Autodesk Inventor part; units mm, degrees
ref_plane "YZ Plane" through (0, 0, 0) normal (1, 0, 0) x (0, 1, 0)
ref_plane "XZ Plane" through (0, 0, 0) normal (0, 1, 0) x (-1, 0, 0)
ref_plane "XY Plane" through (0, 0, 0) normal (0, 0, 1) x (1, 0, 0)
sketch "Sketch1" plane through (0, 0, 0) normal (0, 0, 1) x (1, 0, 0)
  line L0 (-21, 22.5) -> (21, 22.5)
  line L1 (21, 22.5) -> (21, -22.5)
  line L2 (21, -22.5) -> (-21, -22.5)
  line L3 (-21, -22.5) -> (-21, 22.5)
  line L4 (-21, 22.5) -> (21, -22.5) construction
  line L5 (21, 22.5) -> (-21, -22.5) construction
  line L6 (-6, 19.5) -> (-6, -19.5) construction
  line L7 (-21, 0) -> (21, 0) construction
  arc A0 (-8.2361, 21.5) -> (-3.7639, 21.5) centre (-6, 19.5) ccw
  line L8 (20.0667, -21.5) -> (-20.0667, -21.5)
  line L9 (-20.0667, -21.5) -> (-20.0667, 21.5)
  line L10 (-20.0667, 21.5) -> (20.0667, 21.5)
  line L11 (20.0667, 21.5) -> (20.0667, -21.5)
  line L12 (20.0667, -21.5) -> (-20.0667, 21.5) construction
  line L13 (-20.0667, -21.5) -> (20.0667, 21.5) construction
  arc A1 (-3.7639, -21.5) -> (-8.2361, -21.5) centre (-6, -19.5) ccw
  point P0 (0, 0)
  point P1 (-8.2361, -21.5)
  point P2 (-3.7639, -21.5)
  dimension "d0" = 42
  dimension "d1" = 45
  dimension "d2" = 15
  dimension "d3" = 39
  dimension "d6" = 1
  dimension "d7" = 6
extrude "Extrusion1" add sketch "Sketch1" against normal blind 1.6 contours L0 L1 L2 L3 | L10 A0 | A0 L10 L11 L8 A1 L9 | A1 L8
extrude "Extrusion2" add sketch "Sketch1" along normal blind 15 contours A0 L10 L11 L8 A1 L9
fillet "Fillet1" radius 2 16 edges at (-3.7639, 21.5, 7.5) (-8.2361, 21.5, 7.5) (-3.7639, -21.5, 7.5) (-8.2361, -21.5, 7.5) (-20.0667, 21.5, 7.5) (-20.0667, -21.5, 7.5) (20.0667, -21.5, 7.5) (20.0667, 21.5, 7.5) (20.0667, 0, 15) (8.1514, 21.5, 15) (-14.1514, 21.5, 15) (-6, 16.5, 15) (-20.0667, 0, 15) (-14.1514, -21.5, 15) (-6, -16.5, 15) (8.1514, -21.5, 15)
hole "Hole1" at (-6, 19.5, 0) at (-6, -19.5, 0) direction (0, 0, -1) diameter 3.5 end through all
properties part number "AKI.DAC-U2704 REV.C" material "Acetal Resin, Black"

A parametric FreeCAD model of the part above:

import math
import FreeCAD as App
import Part
import Sketcher


def edges_at(feature, points):
    """Names of the edges that pass closest to the given points."""
    edges = feature.Shape.Edges
    near = lambda p: min(range(len(edges)), key=lambda i: edges[i].distToShape(Part.Vertex(*p))[0])
    return sorted({f"Edge{near(p) + 1}" for p in points})

doc = App.newDocument("Part")
body = doc.addObject("PartDesign::Body", "Body")

# Sketch on XY plane
sketch1 = body.newObject("Sketcher::SketchObject", "Sketch")
sketch1.AttachmentSupport = (doc.getObject("XY_Plane"), [""])
sketch1.MapMode = "FlatFace"
sketch1.addGeometry([
    Part.LineSegment(App.Vector(21, 22, 0), App.Vector(-21, 22, 0)),
    Part.LineSegment(App.Vector(-21, 22, 0), App.Vector(-21, -22, 0)),
    Part.LineSegment(App.Vector(-21, -22, 0), App.Vector(21, -22, 0)),
    Part.LineSegment(App.Vector(21, -22, 0), App.Vector(21, 22, 0)),
], False)
sketch1.addConstraint([
    Sketcher.Constraint("Coincident", 0, 2, 1, 1),
    Sketcher.Constraint("Coincident", 1, 2, 2, 1),
    Sketcher.Constraint("Coincident", 2, 2, 3, 1),
    Sketcher.Constraint("Coincident", 3, 2, 0, 1),
    Sketcher.Constraint("Horizontal", 0),
    Sketcher.Constraint("Vertical", 1),
    Sketcher.Constraint("Horizontal", 2),
    Sketcher.Constraint("Vertical", 3),
    Sketcher.Constraint("Symmetric", 0, 2, 2, 2, -1, 1),
    Sketcher.Constraint("DistanceX", 0, 2, 0, 1, 42.0),
    Sketcher.Constraint("DistanceY", 1, 2, 1, 1, 45.0),
])
pad1 = body.newObject("PartDesign::Pad", "Pad")
pad1.Profile = sketch1
pad1.Length = 1.6
pad1.Reversed = True

# Sketch on XY plane
sketch2 = body.newObject("Sketcher::SketchObject", "Sketch001")
sketch2.AttachmentSupport = (doc.getObject("XY_Plane"), [""])
sketch2.MapMode = "FlatFace"
sketch2.addGeometry([
    Part.ArcOfCircle(Part.Circle(App.Vector(-6, 19.5, 0), App.Vector(0, 0, 1), 3), math.radians(138), math.radians(402)),  # 0
    Part.LineSegment(App.Vector(-8.2, 21.5, 0), App.Vector(-20.1, 21.5, 0)),  # 1
    Part.LineSegment(App.Vector(-20.1, 21.5, 0), App.Vector(-20.1, -21.5, 0)),  # 2
    Part.LineSegment(App.Vector(-20.1, -21.5, 0), App.Vector(-8.2, -21.5, 0)),  # 3
    Part.ArcOfCircle(Part.Circle(App.Vector(-6, -19.5, 0), App.Vector(0, 0, 1), 3), math.radians(-42), math.radians(222)),  # 4
    Part.LineSegment(App.Vector(-3.8, -21.5, 0), App.Vector(20.1, -21.5, 0)),  # 5
    Part.LineSegment(App.Vector(20.1, -21.5, 0), App.Vector(20.1, 21.5, 0)),  # 6
    Part.LineSegment(App.Vector(20.1, 21.5, 0), App.Vector(-3.8, 21.5, 0)),  # 7
], False)
sketch2.addConstraint([
    Sketcher.Constraint("Coincident", 0, 1, 1, 1),
    Sketcher.Constraint("Coincident", 1, 2, 2, 1),
    Sketcher.Constraint("Coincident", 2, 2, 3, 1),
    Sketcher.Constraint("Coincident", 3, 2, 4, 2),
    Sketcher.Constraint("Coincident", 4, 1, 5, 1),
    Sketcher.Constraint("Coincident", 5, 2, 6, 1),
    Sketcher.Constraint("Coincident", 6, 2, 7, 1),
    Sketcher.Constraint("Coincident", 7, 2, 0, 2),
    Sketcher.Constraint("Horizontal", 1),
    Sketcher.Constraint("Vertical", 2),
    Sketcher.Constraint("Horizontal", 3),
    Sketcher.Constraint("Horizontal", 5),
    Sketcher.Constraint("Vertical", 6),
    Sketcher.Constraint("Horizontal", 7),
    Sketcher.Constraint("Equal", 0, 4),
    Sketcher.Constraint("Symmetric", 1, 2, 5, 2, -1, 1),
    Sketcher.Constraint("Symmetric", 0, 3, 4, 3, -1),
    Sketcher.Constraint("Horizontal", 3, 2, 4, 1),
    Sketcher.Constraint("Horizontal", 1, 2, 6, 2),
    Sketcher.Constraint("Radius", 0, 3.0),
    Sketcher.Constraint("DistanceX", 0, 3, -1, 1, 6.0),
    Sketcher.Constraint("DistanceY", 4, 3, 0, 3, 39.0),
    Sketcher.Constraint("DistanceY", 2, 2, 2, 1, 43.0),
    Sketcher.Constraint("DistanceX", 1, 2, 1, 1, 11.8306),
])
pad2 = body.newObject("PartDesign::Pad", "Pad001")
pad2.Profile = sketch2
pad2.Length = 15
doc.recompute()

fillet = body.newObject("PartDesign::Fillet", "Fillet")
fillet.Base = (pad2, edges_at(pad2, [
    (-3.764, 21.5, 7.5),
    (-8.236, 21.5, 7.5),
    (-3.764, -21.5, 7.5),
    (-8.236, -21.5, 7.5),
    (-20.067, 21.5, 7.5),
    (-20.067, -21.5, 7.5),
    (20.067, -21.5, 7.5),
    (20.067, 21.5, 7.5),
    (20.067, 0, 15),
    (8.151, 21.5, 15),
    (-14.151, 21.5, 15),
    (-6, 16.5, 15),
    (-20.067, 0, 15),
    (-14.151, -21.5, 15),
    (-6, -16.5, 15),
    (8.151, -21.5, 15),
]))
fillet.Radius = 2

# Sketch on XY plane
sketch3 = body.newObject("Sketcher::SketchObject", "Sketch002")
sketch3.AttachmentSupport = (doc.getObject("XY_Plane"), [""])
sketch3.MapMode = "FlatFace"
sketch3.addGeometry([
    Part.Circle(App.Vector(-6, 19.5, 0), App.Vector(0, 0, 1), 1.8),
    Part.Circle(App.Vector(-6, -19.5, 0), App.Vector(0, 0, 1), 1.8),
], False)
sketch3.addConstraint([
    Sketcher.Constraint("Equal", 0, 1),
    Sketcher.Constraint("Symmetric", 0, 3, 1, 3, -1),
    Sketcher.Constraint("Diameter", 0, 3.5),
    Sketcher.Constraint("DistanceX", 0, 3, -1, 1, 6.0),
    Sketcher.Constraint("DistanceY", 1, 3, 0, 3, 39.0),
])
doc.recompute()
hole = body.newObject("PartDesign::Hole", "Hole")
hole.Profile = sketch3
hole.ThreadType = "None"
hole.Diameter = 3.5
hole.DepthType = "ThroughAll"

doc.recompute()
